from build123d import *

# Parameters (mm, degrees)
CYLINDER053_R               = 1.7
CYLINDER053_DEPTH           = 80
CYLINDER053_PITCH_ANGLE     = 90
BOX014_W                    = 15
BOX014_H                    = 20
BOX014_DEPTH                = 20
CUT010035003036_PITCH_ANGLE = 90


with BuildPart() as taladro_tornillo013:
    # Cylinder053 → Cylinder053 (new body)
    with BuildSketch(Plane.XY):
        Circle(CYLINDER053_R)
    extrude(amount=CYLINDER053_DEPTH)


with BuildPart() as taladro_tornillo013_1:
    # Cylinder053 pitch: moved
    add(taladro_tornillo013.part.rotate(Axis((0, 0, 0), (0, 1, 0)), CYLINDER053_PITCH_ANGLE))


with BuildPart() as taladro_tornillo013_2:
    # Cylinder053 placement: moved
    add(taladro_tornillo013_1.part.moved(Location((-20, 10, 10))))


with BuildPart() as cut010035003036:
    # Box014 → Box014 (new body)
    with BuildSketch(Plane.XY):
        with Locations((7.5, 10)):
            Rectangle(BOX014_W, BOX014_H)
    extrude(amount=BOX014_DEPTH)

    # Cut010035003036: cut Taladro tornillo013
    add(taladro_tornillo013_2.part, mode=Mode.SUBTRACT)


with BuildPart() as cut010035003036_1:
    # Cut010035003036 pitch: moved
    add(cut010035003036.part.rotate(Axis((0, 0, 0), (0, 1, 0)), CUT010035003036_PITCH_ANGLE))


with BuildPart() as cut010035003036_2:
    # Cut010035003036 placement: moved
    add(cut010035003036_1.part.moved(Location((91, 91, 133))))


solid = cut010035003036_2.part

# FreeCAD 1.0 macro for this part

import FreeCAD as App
import Part
import Sketcher
Q = App.Units.Quantity

doc = App.newDocument("Part")
body = doc.addObject("PartDesign::Body", "Body")

# Sketch on XY plane
sketch1 = doc.addObject("Sketcher::SketchObject", "Sketch")
body.addObject(sketch1)
sketch1.AttachmentSupport = (doc.XY_Plane, [""])
sketch1.MapMode = "FlatFace"
sketch1.addGeometry(Part.Circle(App.Vector(0, 0, 0), App.Vector(0, 0, 1), 1.7), False)
sketch1.addConstraint(Sketcher.Constraint("Coincident", 0, 3, -1, 1))
sketch1.addConstraint(Sketcher.Constraint("Diameter", 0, Q("3.4 mm")))
pad1 = doc.addObject("PartDesign::Pad", "Pad")
body.addObject(pad1)
pad1.Profile = sketch1
pad1.Length = 80
body2 = doc.addObject("PartDesign::Body", "Body001")
doc.recompute()

body.Placement = App.Placement(App.Vector(0, 0, 0), App.Rotation(App.Vector(0, 1, 0), 90))
boolean = doc.addObject("PartDesign::Boolean", "Boolean")
body2.addObject(boolean)
boolean.Type = "Fuse"
boolean.addObjects([body])
body3 = doc.addObject("PartDesign::Body", "Body002")
doc.recompute()

body2.Placement = App.Placement(App.Vector(-20, 10, 10), App.Rotation(App.Vector(0, 0, 1), 0))
boolean2 = doc.addObject("PartDesign::Boolean", "Boolean001")
body3.addObject(boolean2)
boolean2.Type = "Fuse"
boolean2.addObjects([body2])
body4 = doc.addObject("PartDesign::Body", "Body003")

# Sketch on XY plane
sketch2 = doc.addObject("Sketcher::SketchObject", "Sketch001")
body4.addObject(sketch2)
sketch2.AttachmentSupport = (doc.getObject("XY_Plane003"), [""])
sketch2.MapMode = "FlatFace"
sketch2.addGeometry(Part.LineSegment(App.Vector(0, 20, 0), App.Vector(0, 0, 0)), False)
sketch2.addGeometry(Part.LineSegment(App.Vector(0, 0, 0), App.Vector(15, 0, 0)), False)
sketch2.addGeometry(Part.LineSegment(App.Vector(15, 0, 0), App.Vector(15, 20, 0)), False)
sketch2.addGeometry(Part.LineSegment(App.Vector(15, 20, 0), App.Vector(0, 20, 0)), False)
sketch2.addConstraint(Sketcher.Constraint("Coincident", 0, 2, 1, 1))
sketch2.addConstraint(Sketcher.Constraint("Coincident", 1, 2, 2, 1))
sketch2.addConstraint(Sketcher.Constraint("Coincident", 2, 2, 3, 1))
sketch2.addConstraint(Sketcher.Constraint("Coincident", 3, 2, 0, 1))
sketch2.addConstraint(Sketcher.Constraint("Vertical", 0))
sketch2.addConstraint(Sketcher.Constraint("Horizontal", 1))
sketch2.addConstraint(Sketcher.Constraint("Vertical", 2))
sketch2.addConstraint(Sketcher.Constraint("Horizontal", 3))
sketch2.addConstraint(Sketcher.Constraint("Coincident", 0, 2, -1, 1))
sketch2.addConstraint(Sketcher.Constraint("DistanceX", 1, 1, 1, 2, Q("15 mm")))
sketch2.addConstraint(Sketcher.Constraint("DistanceY", 0, 2, 0, 1, Q("20 mm")))
pad2 = doc.addObject("PartDesign::Pad", "Pad001")
body4.addObject(pad2)
pad2.Profile = sketch2
pad2.Length = 20
doc.recompute()

boolean3 = doc.addObject("PartDesign::Boolean", "Boolean002")
body4.addObject(boolean3)
boolean3.Type = "Cut"
boolean3.addObjects([body3])
body5 = doc.addObject("PartDesign::Body", "Body004")
doc.recompute()

body4.Placement = App.Placement(App.Vector(0, 0, 0), App.Rotation(App.Vector(0, 1, 0), 90))
boolean4 = doc.addObject("PartDesign::Boolean", "Boolean003")
body5.addObject(boolean4)
boolean4.Type = "Fuse"
boolean4.addObjects([body4])
body6 = doc.addObject("PartDesign::Body", "Body005")
doc.recompute()

body5.Placement = App.Placement(App.Vector(91, 91, 133), App.Rotation(App.Vector(0, 0, 1), 0))
boolean5 = doc.addObject("PartDesign::Boolean", "Boolean004")
body6.addObject(boolean5)
boolean5.Type = "Fuse"
boolean5.addObjects([body5])

doc.recompute()
